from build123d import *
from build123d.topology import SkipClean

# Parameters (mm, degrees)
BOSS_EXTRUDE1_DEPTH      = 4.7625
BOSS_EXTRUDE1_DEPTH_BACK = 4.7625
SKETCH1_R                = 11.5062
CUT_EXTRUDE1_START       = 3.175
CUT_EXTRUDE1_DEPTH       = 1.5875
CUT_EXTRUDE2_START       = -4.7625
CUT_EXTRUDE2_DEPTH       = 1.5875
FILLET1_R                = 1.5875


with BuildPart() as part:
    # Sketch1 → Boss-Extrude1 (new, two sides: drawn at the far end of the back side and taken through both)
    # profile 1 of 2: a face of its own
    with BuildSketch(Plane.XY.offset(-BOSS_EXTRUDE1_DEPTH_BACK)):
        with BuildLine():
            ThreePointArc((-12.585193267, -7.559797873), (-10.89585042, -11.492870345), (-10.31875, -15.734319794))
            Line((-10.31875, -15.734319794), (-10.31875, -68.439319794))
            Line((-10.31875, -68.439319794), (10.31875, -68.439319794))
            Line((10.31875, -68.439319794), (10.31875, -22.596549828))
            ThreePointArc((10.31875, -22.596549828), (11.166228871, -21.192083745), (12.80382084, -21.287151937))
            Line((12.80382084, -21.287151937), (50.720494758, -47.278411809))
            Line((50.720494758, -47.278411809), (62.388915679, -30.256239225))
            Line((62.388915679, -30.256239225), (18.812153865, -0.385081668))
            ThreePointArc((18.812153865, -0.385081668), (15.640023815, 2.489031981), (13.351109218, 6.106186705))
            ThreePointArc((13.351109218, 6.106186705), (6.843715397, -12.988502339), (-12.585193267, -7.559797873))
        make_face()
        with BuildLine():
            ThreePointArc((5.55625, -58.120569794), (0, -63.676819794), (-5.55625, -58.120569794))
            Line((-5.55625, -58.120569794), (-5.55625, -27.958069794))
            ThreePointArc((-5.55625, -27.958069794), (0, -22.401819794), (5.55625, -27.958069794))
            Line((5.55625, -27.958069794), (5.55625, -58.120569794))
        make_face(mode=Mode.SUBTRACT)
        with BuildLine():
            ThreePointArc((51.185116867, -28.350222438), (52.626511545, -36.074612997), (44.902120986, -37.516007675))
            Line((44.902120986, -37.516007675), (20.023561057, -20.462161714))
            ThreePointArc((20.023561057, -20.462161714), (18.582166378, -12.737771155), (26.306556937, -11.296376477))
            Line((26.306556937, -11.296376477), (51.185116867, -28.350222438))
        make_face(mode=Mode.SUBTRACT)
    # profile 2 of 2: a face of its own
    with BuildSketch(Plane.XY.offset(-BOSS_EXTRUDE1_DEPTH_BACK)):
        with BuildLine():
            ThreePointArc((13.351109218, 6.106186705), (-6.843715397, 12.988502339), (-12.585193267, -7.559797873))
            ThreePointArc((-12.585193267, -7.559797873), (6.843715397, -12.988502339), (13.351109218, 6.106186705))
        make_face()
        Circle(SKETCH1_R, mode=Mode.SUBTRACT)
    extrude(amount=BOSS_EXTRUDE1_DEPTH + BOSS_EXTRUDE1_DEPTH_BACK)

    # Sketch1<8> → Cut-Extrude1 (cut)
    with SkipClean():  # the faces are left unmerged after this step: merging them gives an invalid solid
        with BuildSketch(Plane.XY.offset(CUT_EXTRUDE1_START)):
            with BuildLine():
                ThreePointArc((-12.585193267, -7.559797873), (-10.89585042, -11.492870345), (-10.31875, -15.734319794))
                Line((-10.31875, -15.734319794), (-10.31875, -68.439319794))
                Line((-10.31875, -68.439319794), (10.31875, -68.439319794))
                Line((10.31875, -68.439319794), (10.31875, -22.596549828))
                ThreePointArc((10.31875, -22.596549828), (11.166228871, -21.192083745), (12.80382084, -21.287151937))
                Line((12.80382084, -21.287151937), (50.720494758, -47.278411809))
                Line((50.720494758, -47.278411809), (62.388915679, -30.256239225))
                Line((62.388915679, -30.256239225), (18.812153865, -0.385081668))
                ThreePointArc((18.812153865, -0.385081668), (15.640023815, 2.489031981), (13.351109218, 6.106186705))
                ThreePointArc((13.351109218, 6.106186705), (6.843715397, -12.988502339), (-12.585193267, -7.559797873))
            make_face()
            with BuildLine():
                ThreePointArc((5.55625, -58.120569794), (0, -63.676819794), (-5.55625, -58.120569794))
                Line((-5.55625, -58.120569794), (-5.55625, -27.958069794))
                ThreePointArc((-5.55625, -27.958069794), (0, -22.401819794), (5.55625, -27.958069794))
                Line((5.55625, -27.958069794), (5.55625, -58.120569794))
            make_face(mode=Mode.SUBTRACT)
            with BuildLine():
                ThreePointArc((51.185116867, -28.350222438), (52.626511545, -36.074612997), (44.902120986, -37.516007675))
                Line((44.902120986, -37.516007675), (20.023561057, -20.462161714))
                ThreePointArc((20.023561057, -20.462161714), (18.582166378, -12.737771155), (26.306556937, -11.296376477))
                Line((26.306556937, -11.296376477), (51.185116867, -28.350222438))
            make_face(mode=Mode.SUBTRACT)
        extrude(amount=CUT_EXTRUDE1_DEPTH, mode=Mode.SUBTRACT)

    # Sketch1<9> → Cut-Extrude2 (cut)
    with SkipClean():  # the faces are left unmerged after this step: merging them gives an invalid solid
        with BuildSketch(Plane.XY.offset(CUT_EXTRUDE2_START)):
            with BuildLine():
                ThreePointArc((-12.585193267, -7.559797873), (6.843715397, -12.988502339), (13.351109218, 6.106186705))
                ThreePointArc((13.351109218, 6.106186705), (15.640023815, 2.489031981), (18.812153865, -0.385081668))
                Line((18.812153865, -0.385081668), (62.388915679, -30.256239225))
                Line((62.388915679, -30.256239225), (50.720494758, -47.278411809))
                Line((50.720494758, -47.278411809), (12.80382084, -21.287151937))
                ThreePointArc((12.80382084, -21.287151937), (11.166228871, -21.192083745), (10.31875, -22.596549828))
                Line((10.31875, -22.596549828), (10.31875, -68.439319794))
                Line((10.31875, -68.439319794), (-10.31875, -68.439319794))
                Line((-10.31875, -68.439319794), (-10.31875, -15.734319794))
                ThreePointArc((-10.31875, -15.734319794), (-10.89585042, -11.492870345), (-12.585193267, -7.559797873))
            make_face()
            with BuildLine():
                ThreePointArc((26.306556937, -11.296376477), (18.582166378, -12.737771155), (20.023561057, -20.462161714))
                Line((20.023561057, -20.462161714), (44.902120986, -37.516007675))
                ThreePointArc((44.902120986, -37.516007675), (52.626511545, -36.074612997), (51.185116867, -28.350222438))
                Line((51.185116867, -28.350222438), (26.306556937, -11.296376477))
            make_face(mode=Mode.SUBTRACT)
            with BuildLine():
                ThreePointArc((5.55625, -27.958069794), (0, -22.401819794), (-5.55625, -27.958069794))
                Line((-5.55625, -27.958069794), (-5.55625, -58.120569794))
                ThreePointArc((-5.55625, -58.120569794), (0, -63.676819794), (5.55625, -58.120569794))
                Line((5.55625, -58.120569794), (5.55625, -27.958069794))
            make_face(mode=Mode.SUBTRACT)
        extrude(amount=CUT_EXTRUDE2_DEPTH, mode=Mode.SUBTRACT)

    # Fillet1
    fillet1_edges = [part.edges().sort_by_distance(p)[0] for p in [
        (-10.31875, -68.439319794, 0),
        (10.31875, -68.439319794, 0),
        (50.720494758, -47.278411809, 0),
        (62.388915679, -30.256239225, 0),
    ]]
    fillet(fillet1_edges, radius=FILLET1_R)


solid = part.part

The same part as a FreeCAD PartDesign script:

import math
import FreeCAD as App
import Part
import Sketcher
from FreeCAD import Vector
Q = App.Units.Quantity


def edges_at(feature, points):
    """Names of the edges that pass closest to the given points."""
    edges = feature.Shape.Edges
    near = lambda p: min(range(len(edges)), key=lambda i: edges[i].distToShape(Part.Vertex(*p))[0])
    return sorted({f"Edge{near(p) + 1}" for p in points})

doc = App.newDocument("Part")
body = doc.addObject("PartDesign::Body", "Body")

sketch1 = body.newObject("Sketcher::SketchObject", "Sketch")
sketch1.AttachmentSupport = (doc.getObject("XY_Plane"), [""])
sketch1.MapMode = "FlatFace"
sketch1.addGeometry(Part.ArcOfCircle(Part.Circle(Vector(-26.2, -15.7, 0), Vector(0, 0, 1), 15.9), math.radians(0), math.radians(31)), False)
sketch1.addGeometry(Part.LineSegment(Vector(-10.3, -15.7, 0), Vector(-10.3, -68.4, 0)), False)
sketch1.addGeometry(Part.LineSegment(Vector(-10.3, -68.4, 0), Vector(10.3, -68.4, 0)), False)
sketch1.addGeometry(Part.LineSegment(Vector(10.3, -68.4, 0), Vector(10.3, -22.6, 0)), False)
sketch1.addGeometry(Part.ArcOfCircle(Part.Circle(Vector(11.9, -22.6, 0), Vector(0, 0, 1), 1.6), math.radians(56), math.radians(180)), False)
sketch1.addGeometry(Part.LineSegment(Vector(12.8, -21.3, 0), Vector(50.7, -47.3, 0)), False)
sketch1.addGeometry(Part.LineSegment(Vector(50.7, -47.3, 0), Vector(62.4, -30.3, 0)), False)
sketch1.addGeometry(Part.LineSegment(Vector(62.4, -30.3, 0), Vector(18.8, -0.4, 0)), False)
sketch1.addGeometry(Part.ArcOfCircle(Part.Circle(Vector(27.8, 12.7, 0), Vector(0, 0, 1), 15.9), math.radians(-155), math.radians(-124)), False)
sketch1.addGeometry(Part.ArcOfCircle(Part.Circle(Vector(0, 0, 0), Vector(0, 0, 1), 14.7), math.radians(25), math.radians(211)), False)
sketch1.addGeometry(Part.LineSegment(Vector(5.6, -28, 0), Vector(5.6, -58.1, 0)), False)
sketch1.addGeometry(Part.ArcOfCircle(Part.Circle(Vector(0, -58.1, 0), Vector(0, 0, 1), 5.6), math.radians(180), math.radians(360)), False)
sketch1.addGeometry(Part.LineSegment(Vector(-5.6, -58.1, 0), Vector(-5.6, -28, 0)), False)
sketch1.addGeometry(Part.ArcOfCircle(Part.Circle(Vector(0, -28, 0), Vector(0, 0, 1), 5.6), math.radians(0), math.radians(180)), False)
sketch1.addGeometry(Part.LineSegment(Vector(26.3, -11.3, 0), Vector(51.2, -28.4, 0)), False)
sketch1.addGeometry(Part.ArcOfCircle(Part.Circle(Vector(48, -32.9, 0), Vector(0, 0, 1), 5.6), math.radians(-124), math.radians(56)), False)
sketch1.addGeometry(Part.LineSegment(Vector(44.9, -37.5, 0), Vector(20, -20.5, 0)), False)
sketch1.addGeometry(Part.ArcOfCircle(Part.Circle(Vector(23.2, -15.9, 0), Vector(0, 0, 1), 5.6), math.radians(56), math.radians(236)), False)
sketch1.addGeometry(Part.Circle(Vector(0, 0, 0), Vector(0, 0, 1), 11.5), False)
sketch1.addConstraint(Sketcher.Constraint("Tangent", 0, 1, 1, 1))
sketch1.addConstraint(Sketcher.Constraint("Coincident", 1, 2, 2, 1))
sketch1.addConstraint(Sketcher.Constraint("Coincident", 2, 2, 3, 1))
sketch1.addConstraint(Sketcher.Constraint("Tangent", 3, 2, 4, 2))
sketch1.addConstraint(Sketcher.Constraint("Tangent", 4, 1, 5, 1))
sketch1.addConstraint(Sketcher.Constraint("Coincident", 5, 2, 6, 1))
sketch1.addConstraint(Sketcher.Constraint("Coincident", 6, 2, 7, 1))
sketch1.addConstraint(Sketcher.Constraint("Tangent", 7, 2, 8, 2))
sketch1.addConstraint(Sketcher.Constraint("Tangent", 8, 1, 9, 1))
sketch1.addConstraint(Sketcher.Constraint("Tangent", 9, 2, 0, 2))
sketch1.addConstraint(Sketcher.Constraint("Tangent", 10, 2, 11, 2))
sketch1.addConstraint(Sketcher.Constraint("Tangent", 11, 1, 12, 1))
sketch1.addConstraint(Sketcher.Constraint("Tangent", 12, 2, 13, 2))
sketch1.addConstraint(Sketcher.Constraint("Tangent", 13, 1, 10, 1))
sketch1.addConstraint(Sketcher.Constraint("Tangent", 14, 2, 15, 2))
sketch1.addConstraint(Sketcher.Constraint("Tangent", 15, 1, 16, 1))
sketch1.addConstraint(Sketcher.Constraint("Tangent", 16, 2, 17, 2))
sketch1.addConstraint(Sketcher.Constraint("Tangent", 17, 1, 14, 1))
sketch1.addConstraint(Sketcher.Constraint("Vertical", 1))
sketch1.addConstraint(Sketcher.Constraint("Horizontal", 2))
sketch1.addConstraint(Sketcher.Constraint("Vertical", 3))
sketch1.addConstraint(Sketcher.Constraint("Vertical", 10))
sketch1.addConstraint(Sketcher.Constraint("Vertical", 12))
sketch1.addConstraint(Sketcher.Constraint("Coincident", 9, 3, -1, 1))
sketch1.addConstraint(Sketcher.Constraint("Coincident", 18, 3, -1, 1))
sketch1.addConstraint(Sketcher.Constraint("Equal", 0, 8))
sketch1.addConstraint(Sketcher.Constraint("Equal", 13, 15))
sketch1.addConstraint(Sketcher.Constraint("Equal", 15, 17))
sketch1.addConstraint(Sketcher.Constraint("PointOnObject", 11, 3, -2))
sketch1.addConstraint(Sketcher.Constraint("Perpendicular", 5, 6))
sketch1.addConstraint(Sketcher.Constraint("Perpendicular", 6, 7))
sketch1.addConstraint(Sketcher.Constraint("Parallel", 7, 14))
sketch1.addConstraint(Sketcher.Constraint("Diameter", 18, Q("0.906 in")))
sketch1.addConstraint(Sketcher.Constraint("Radius", 0, Q("0.625 in")))
sketch1.addConstraint(Sketcher.Constraint("Radius", 4, Q("0.0625 in")))
sketch1.addConstraint(Sketcher.Constraint("Radius", 9, Q("0.578 in")))
sketch1.addConstraint(Sketcher.Constraint("Radius", 11, Q("0.21875 in")))
sketch1.addConstraint(Sketcher.Constraint("DistanceX", 0, 3, 4, 3, Q("1.5 in")))
sketch1.addConstraint(Sketcher.Constraint("Distance", 7, Q("2.08 in")))
sketch1.addConstraint(Sketcher.Constraint("DistanceY", 1, 2, 1, 1, Q("2.075 in")))
sketch1.addConstraint(Sketcher.Constraint("DistanceY", 10, 2, 10, 1, Q("1.1875 in")))
sketch1.addConstraint(Sketcher.Constraint("Angle", 5, Q("-34.43 deg")))
sketch1.addConstraint(Sketcher.Constraint("DistanceX", 13, 1, 4, 3, Q("0.25 in")))
sketch1.addConstraint(Sketcher.Constraint("Distance", 6, Q("0.8125 in")))
sketch1.addConstraint(Sketcher.Constraint("Distance", 14, Q("1.1875 in")))
sketch1.addConstraint(Sketcher.Constraint("DistanceX", 17, 3, 8, 3, Q("0.1820001 in")))
sketch1.addConstraint(Sketcher.Constraint("DistanceY", 1, 2, 11, 3, Q("0.40625 in")))
sketch1.addConstraint(Sketcher.Constraint("DistanceX", -1, 1, 15, 1, Q("1.7678 in")))
sketch1.addConstraint(Sketcher.Constraint("DistanceY", 13, 3, 17, 3, 12.078801))
pad1 = body.newObject("PartDesign::Pad", "Pad")
pad1.Profile = sketch1
pad1.Type = "TwoLengths"
pad1.Length = Q("0.1875 in")
pad1.Length2 = Q("0.1875 in")

sketch2 = body.newObject("Sketcher::SketchObject", "Sketch001")
sketch2.AttachmentSupport = (doc.getObject("XY_Plane"), [""])
sketch2.MapMode = "FlatFace"
sketch2.AttachmentOffset = App.Placement(Vector(0, 0, 0.125 * 25.4), App.Rotation())
sketch2.addGeometry(Part.ArcOfCircle(Part.Circle(Vector(-26.2, -15.7, 0), Vector(0, 0, 1), 15.9), math.radians(0), math.radians(31)), False)
sketch2.addGeometry(Part.LineSegment(Vector(-10.3, -15.7, 0), Vector(-10.3, -68.4, 0)), False)
sketch2.addGeometry(Part.LineSegment(Vector(-10.3, -68.4, 0), Vector(10.3, -68.4, 0)), False)
sketch2.addGeometry(Part.LineSegment(Vector(10.3, -68.4, 0), Vector(10.3, -22.6, 0)), False)
sketch2.addGeometry(Part.ArcOfCircle(Part.Circle(Vector(11.9, -22.6, 0), Vector(0, 0, 1), 1.6), math.radians(56), math.radians(180)), False)
sketch2.addGeometry(Part.LineSegment(Vector(12.8, -21.3, 0), Vector(50.7, -47.3, 0)), False)
sketch2.addGeometry(Part.LineSegment(Vector(50.7, -47.3, 0), Vector(62.4, -30.3, 0)), False)
sketch2.addGeometry(Part.LineSegment(Vector(62.4, -30.3, 0), Vector(18.8, -0.4, 0)), False)
sketch2.addGeometry(Part.ArcOfCircle(Part.Circle(Vector(27.8, 12.7, 0), Vector(0, 0, 1), 15.9), math.radians(-155), math.radians(-124)), False)
sketch2.addGeometry(Part.ArcOfCircle(Part.Circle(Vector(0, 0, 0), Vector(0, 0, 1), 14.7), math.radians(-149), math.radians(25)), False)
sketch2.addGeometry(Part.LineSegment(Vector(5.6, -28, 0), Vector(5.6, -58.1, 0)), False)
sketch2.addGeometry(Part.ArcOfCircle(Part.Circle(Vector(0, -58.1, 0), Vector(0, 0, 1), 5.6), math.radians(180), math.radians(360)), False)
sketch2.addGeometry(Part.LineSegment(Vector(-5.6, -58.1, 0), Vector(-5.6, -28, 0)), False)
sketch2.addGeometry(Part.ArcOfCircle(Part.Circle(Vector(0, -28, 0), Vector(0, 0, 1), 5.6), math.radians(0), math.radians(180)), False)
sketch2.addGeometry(Part.LineSegment(Vector(26.3, -11.3, 0), Vector(51.2, -28.4, 0)), False)
sketch2.addGeometry(Part.ArcOfCircle(Part.Circle(Vector(48, -32.9, 0), Vector(0, 0, 1), 5.6), math.radians(-124), math.radians(56)), False)
sketch2.addGeometry(Part.LineSegment(Vector(44.9, -37.5, 0), Vector(20, -20.5, 0)), False)
sketch2.addGeometry(Part.ArcOfCircle(Part.Circle(Vector(23.2, -15.9, 0), Vector(0, 0, 1), 5.6), math.radians(56), math.radians(236)), False)
sketch2.addConstraint(Sketcher.Constraint("Tangent", 0, 1, 1, 1))
sketch2.addConstraint(Sketcher.Constraint("Coincident", 1, 2, 2, 1))
sketch2.addConstraint(Sketcher.Constraint("Coincident", 2, 2, 3, 1))
sketch2.addConstraint(Sketcher.Constraint("Tangent", 3, 2, 4, 2))
sketch2.addConstraint(Sketcher.Constraint("Tangent", 4, 1, 5, 1))
sketch2.addConstraint(Sketcher.Constraint("Coincident", 5, 2, 6, 1))
sketch2.addConstraint(Sketcher.Constraint("Coincident", 6, 2, 7, 1))
sketch2.addConstraint(Sketcher.Constraint("Tangent", 7, 2, 8, 2))
sketch2.addConstraint(Sketcher.Constraint("Tangent", 8, 1, 9, 2))
sketch2.addConstraint(Sketcher.Constraint("Tangent", 9, 1, 0, 2))
sketch2.addConstraint(Sketcher.Constraint("Tangent", 10, 2, 11, 2))
sketch2.addConstraint(Sketcher.Constraint("Tangent", 11, 1, 12, 1))
sketch2.addConstraint(Sketcher.Constraint("Tangent", 12, 2, 13, 2))
sketch2.addConstraint(Sketcher.Constraint("Tangent", 13, 1, 10, 1))
sketch2.addConstraint(Sketcher.Constraint("Tangent", 14, 2, 15, 2))
sketch2.addConstraint(Sketcher.Constraint("Tangent", 15, 1, 16, 1))
sketch2.addConstraint(Sketcher.Constraint("Tangent", 16, 2, 17, 2))
sketch2.addConstraint(Sketcher.Constraint("Tangent", 17, 1, 14, 1))
sketch2.addConstraint(Sketcher.Constraint("Vertical", 1))
sketch2.addConstraint(Sketcher.Constraint("Horizontal", 2))
sketch2.addConstraint(Sketcher.Constraint("Vertical", 3))
sketch2.addConstraint(Sketcher.Constraint("Vertical", 10))
sketch2.addConstraint(Sketcher.Constraint("Vertical", 12))
sketch2.addConstraint(Sketcher.Constraint("Coincident", 9, 3, -1, 1))
sketch2.addConstraint(Sketcher.Constraint("Equal", 0, 8))
sketch2.addConstraint(Sketcher.Constraint("Equal", 13, 15))
sketch2.addConstraint(Sketcher.Constraint("Equal", 15, 17))
sketch2.addConstraint(Sketcher.Constraint("PointOnObject", 11, 3, -2))
sketch2.addConstraint(Sketcher.Constraint("Perpendicular", 5, 6))
sketch2.addConstraint(Sketcher.Constraint("Perpendicular", 6, 7))
sketch2.addConstraint(Sketcher.Constraint("Parallel", 7, 14))
sketch2.addConstraint(Sketcher.Constraint("Radius", 0, Q("0.625 in")))
sketch2.addConstraint(Sketcher.Constraint("Radius", 4, Q("0.0625 in")))
sketch2.addConstraint(Sketcher.Constraint("Radius", 9, Q("0.578 in")))
sketch2.addConstraint(Sketcher.Constraint("Radius", 11, Q("0.21875 in")))
sketch2.addConstraint(Sketcher.Constraint("DistanceX", 0, 3, 4, 3, Q("1.5 in")))
sketch2.addConstraint(Sketcher.Constraint("Distance", 7, Q("2.08 in")))
sketch2.addConstraint(Sketcher.Constraint("DistanceY", 1, 2, 1, 1, Q("2.075 in")))
sketch2.addConstraint(Sketcher.Constraint("DistanceY", 10, 2, 10, 1, Q("1.1875 in")))
sketch2.addConstraint(Sketcher.Constraint("Angle", 5, Q("-34.43 deg")))
sketch2.addConstraint(Sketcher.Constraint("DistanceX", 13, 1, 4, 3, Q("0.25 in")))
sketch2.addConstraint(Sketcher.Constraint("Distance", 6, Q("0.8125 in")))
sketch2.addConstraint(Sketcher.Constraint("Distance", 14, Q("1.1875 in")))
sketch2.addConstraint(Sketcher.Constraint("DistanceX", 17, 3, 8, 3, Q("0.1820001 in")))
sketch2.addConstraint(Sketcher.Constraint("DistanceY", 1, 2, 11, 3, Q("0.40625 in")))
sketch2.addConstraint(Sketcher.Constraint("DistanceX", -1, 1, 15, 1, Q("1.7678 in")))
sketch2.addConstraint(Sketcher.Constraint("DistanceY", 13, 3, 17, 3, 12.078801))
pocket1 = body.newObject("PartDesign::Pocket", "Pocket")
pocket1.Profile = sketch2
pocket1.Length = Q("0.0625 in")
pocket1.Reversed = True

sketch3 = body.newObject("Sketcher::SketchObject", "Sketch002")
sketch3.AttachmentSupport = (doc.getObject("XY_Plane"), [""])
sketch3.MapMode = "FlatFace"
sketch3.AttachmentOffset = App.Placement(Vector(0, 0, -0.1875 * 25.4), App.Rotation())
sketch3.addGeometry(Part.ArcOfCircle(Part.Circle(Vector(0, 0, 0), Vector(0, 0, 1), 14.7), math.radians(-149), math.radians(25)), False)
sketch3.addGeometry(Part.ArcOfCircle(Part.Circle(Vector(-26.2, -15.7, 0), Vector(0, 0, 1), 15.9), math.radians(0), math.radians(31)), False)
sketch3.addGeometry(Part.LineSegment(Vector(-10.3, -15.7, 0), Vector(-10.3, -68.4, 0)), False)
sketch3.addGeometry(Part.LineSegment(Vector(-10.3, -68.4, 0), Vector(10.3, -68.4, 0)), False)
sketch3.addGeometry(Part.LineSegment(Vector(10.3, -68.4, 0), Vector(10.3, -22.6, 0)), False)
sketch3.addGeometry(Part.ArcOfCircle(Part.Circle(Vector(11.9, -22.6, 0), Vector(0, 0, 1), 1.6), math.radians(56), math.radians(180)), False)
sketch3.addGeometry(Part.LineSegment(Vector(12.8, -21.3, 0), Vector(50.7, -47.3, 0)), False)
sketch3.addGeometry(Part.LineSegment(Vector(50.7, -47.3, 0), Vector(62.4, -30.3, 0)), False)
sketch3.addGeometry(Part.LineSegment(Vector(62.4, -30.3, 0), Vector(18.8, -0.4, 0)), False)
sketch3.addGeometry(Part.ArcOfCircle(Part.Circle(Vector(27.8, 12.7, 0), Vector(0, 0, 1), 15.9), math.radians(-155), math.radians(-124)), False)
sketch3.addGeometry(Part.LineSegment(Vector(5.6, -28, 0), Vector(5.6, -58.1, 0)), False)
sketch3.addGeometry(Part.ArcOfCircle(Part.Circle(Vector(0, -58.1, 0), Vector(0, 0, 1), 5.6), math.radians(180), math.radians(360)), False)
sketch3.addGeometry(Part.LineSegment(Vector(-5.6, -58.1, 0), Vector(-5.6, -28, 0)), False)
sketch3.addGeometry(Part.ArcOfCircle(Part.Circle(Vector(0, -28, 0), Vector(0, 0, 1), 5.6), math.radians(0), math.radians(180)), False)
sketch3.addGeometry(Part.LineSegment(Vector(26.3, -11.3, 0), Vector(51.2, -28.4, 0)), False)
sketch3.addGeometry(Part.ArcOfCircle(Part.Circle(Vector(48, -32.9, 0), Vector(0, 0, 1), 5.6), math.radians(-124), math.radians(56)), False)
sketch3.addGeometry(Part.LineSegment(Vector(44.9, -37.5, 0), Vector(20, -20.5, 0)), False)
sketch3.addGeometry(Part.ArcOfCircle(Part.Circle(Vector(23.2, -15.9, 0), Vector(0, 0, 1), 5.6), math.radians(56), math.radians(236)), False)
sketch3.addConstraint(Sketcher.Constraint("Tangent", 0, 1, 1, 2))
sketch3.addConstraint(Sketcher.Constraint("Tangent", 1, 1, 2, 1))
sketch3.addConstraint(Sketcher.Constraint("Coincident", 2, 2, 3, 1))
sketch3.addConstraint(Sketcher.Constraint("Coincident", 3, 2, 4, 1))
sketch3.addConstraint(Sketcher.Constraint("Tangent", 4, 2, 5, 2))
sketch3.addConstraint(Sketcher.Constraint("Tangent", 5, 1, 6, 1))
sketch3.addConstraint(Sketcher.Constraint("Coincident", 6, 2, 7, 1))
sketch3.addConstraint(Sketcher.Constraint("Coincident", 7, 2, 8, 1))
sketch3.addConstraint(Sketcher.Constraint("Tangent", 8, 2, 9, 2))
sketch3.addConstraint(Sketcher.Constraint("Tangent", 9, 1, 0, 2))
sketch3.addConstraint(Sketcher.Constraint("Tangent", 10, 2, 11, 2))
sketch3.addConstraint(Sketcher.Constraint("Tangent", 11, 1, 12, 1))
sketch3.addConstraint(Sketcher.Constraint("Tangent", 12, 2, 13, 2))
sketch3.addConstraint(Sketcher.Constraint("Tangent", 13, 1, 10, 1))
sketch3.addConstraint(Sketcher.Constraint("Tangent", 14, 2, 15, 2))
sketch3.addConstraint(Sketcher.Constraint("Tangent", 15, 1, 16, 1))
sketch3.addConstraint(Sketcher.Constraint("Tangent", 16, 2, 17, 2))
sketch3.addConstraint(Sketcher.Constraint("Tangent", 17, 1, 14, 1))
sketch3.addConstraint(Sketcher.Constraint("Vertical", 2))
sketch3.addConstraint(Sketcher.Constraint("Horizontal", 3))
sketch3.addConstraint(Sketcher.Constraint("Vertical", 4))
sketch3.addConstraint(Sketcher.Constraint("Vertical", 10))
sketch3.addConstraint(Sketcher.Constraint("Vertical", 12))
sketch3.addConstraint(Sketcher.Constraint("Coincident", 0, 3, -1, 1))
sketch3.addConstraint(Sketcher.Constraint("Equal", 1, 9))
sketch3.addConstraint(Sketcher.Constraint("Equal", 13, 15))
sketch3.addConstraint(Sketcher.Constraint("Equal", 15, 17))
sketch3.addConstraint(Sketcher.Constraint("PointOnObject", 11, 3, -2))
sketch3.addConstraint(Sketcher.Constraint("Perpendicular", 6, 7))
sketch3.addConstraint(Sketcher.Constraint("Perpendicular", 7, 8))
sketch3.addConstraint(Sketcher.Constraint("Parallel", 8, 14))
sketch3.addConstraint(Sketcher.Constraint("Radius", 0, Q("0.578 in")))
sketch3.addConstraint(Sketcher.Constraint("Radius", 1, Q("0.625 in")))
sketch3.addConstraint(Sketcher.Constraint("Radius", 5, Q("0.0625 in")))
sketch3.addConstraint(Sketcher.Constraint("Radius", 11, Q("0.21875 in")))
sketch3.addConstraint(Sketcher.Constraint("DistanceX", 1, 3, 5, 3, Q("1.5 in")))
sketch3.addConstraint(Sketcher.Constraint("Distance", 8, Q("2.08 in")))
sketch3.addConstraint(Sketcher.Constraint("DistanceY", 2, 2, 2, 1, Q("2.075 in")))
sketch3.addConstraint(Sketcher.Constraint("DistanceY", 10, 2, 10, 1, Q("1.1875 in")))
sketch3.addConstraint(Sketcher.Constraint("Angle", 6, Q("-34.43 deg")))
sketch3.addConstraint(Sketcher.Constraint("DistanceX", 13, 1, 5, 3, Q("0.25 in")))
sketch3.addConstraint(Sketcher.Constraint("Distance", 7, Q("0.8125 in")))
sketch3.addConstraint(Sketcher.Constraint("Distance", 14, Q("1.1875 in")))
sketch3.addConstraint(Sketcher.Constraint("DistanceX", 17, 3, 9, 3, Q("0.1820001 in")))
sketch3.addConstraint(Sketcher.Constraint("DistanceY", 2, 2, 11, 3, Q("0.40625 in")))
sketch3.addConstraint(Sketcher.Constraint("DistanceX", -1, 1, 15, 1, Q("1.7678 in")))
sketch3.addConstraint(Sketcher.Constraint("DistanceY", 13, 3, 17, 3, 12.078801))
pocket2 = body.newObject("PartDesign::Pocket", "Pocket001")
pocket2.Profile = sketch3
pocket2.Length = Q("0.0625 in")
pocket2.Reversed = True
doc.recompute()

fillet = body.newObject("PartDesign::Fillet", "Fillet")
fillet.Base = (pocket2, edges_at(pocket2, [
    (-10.319, -68.439, 0),
    (10.319, -68.439, 0),
    (50.72, -47.278, 0),
    (62.389, -30.256, 0),
]))
fillet.Radius = Q("0.0625 in")

doc.recompute()
